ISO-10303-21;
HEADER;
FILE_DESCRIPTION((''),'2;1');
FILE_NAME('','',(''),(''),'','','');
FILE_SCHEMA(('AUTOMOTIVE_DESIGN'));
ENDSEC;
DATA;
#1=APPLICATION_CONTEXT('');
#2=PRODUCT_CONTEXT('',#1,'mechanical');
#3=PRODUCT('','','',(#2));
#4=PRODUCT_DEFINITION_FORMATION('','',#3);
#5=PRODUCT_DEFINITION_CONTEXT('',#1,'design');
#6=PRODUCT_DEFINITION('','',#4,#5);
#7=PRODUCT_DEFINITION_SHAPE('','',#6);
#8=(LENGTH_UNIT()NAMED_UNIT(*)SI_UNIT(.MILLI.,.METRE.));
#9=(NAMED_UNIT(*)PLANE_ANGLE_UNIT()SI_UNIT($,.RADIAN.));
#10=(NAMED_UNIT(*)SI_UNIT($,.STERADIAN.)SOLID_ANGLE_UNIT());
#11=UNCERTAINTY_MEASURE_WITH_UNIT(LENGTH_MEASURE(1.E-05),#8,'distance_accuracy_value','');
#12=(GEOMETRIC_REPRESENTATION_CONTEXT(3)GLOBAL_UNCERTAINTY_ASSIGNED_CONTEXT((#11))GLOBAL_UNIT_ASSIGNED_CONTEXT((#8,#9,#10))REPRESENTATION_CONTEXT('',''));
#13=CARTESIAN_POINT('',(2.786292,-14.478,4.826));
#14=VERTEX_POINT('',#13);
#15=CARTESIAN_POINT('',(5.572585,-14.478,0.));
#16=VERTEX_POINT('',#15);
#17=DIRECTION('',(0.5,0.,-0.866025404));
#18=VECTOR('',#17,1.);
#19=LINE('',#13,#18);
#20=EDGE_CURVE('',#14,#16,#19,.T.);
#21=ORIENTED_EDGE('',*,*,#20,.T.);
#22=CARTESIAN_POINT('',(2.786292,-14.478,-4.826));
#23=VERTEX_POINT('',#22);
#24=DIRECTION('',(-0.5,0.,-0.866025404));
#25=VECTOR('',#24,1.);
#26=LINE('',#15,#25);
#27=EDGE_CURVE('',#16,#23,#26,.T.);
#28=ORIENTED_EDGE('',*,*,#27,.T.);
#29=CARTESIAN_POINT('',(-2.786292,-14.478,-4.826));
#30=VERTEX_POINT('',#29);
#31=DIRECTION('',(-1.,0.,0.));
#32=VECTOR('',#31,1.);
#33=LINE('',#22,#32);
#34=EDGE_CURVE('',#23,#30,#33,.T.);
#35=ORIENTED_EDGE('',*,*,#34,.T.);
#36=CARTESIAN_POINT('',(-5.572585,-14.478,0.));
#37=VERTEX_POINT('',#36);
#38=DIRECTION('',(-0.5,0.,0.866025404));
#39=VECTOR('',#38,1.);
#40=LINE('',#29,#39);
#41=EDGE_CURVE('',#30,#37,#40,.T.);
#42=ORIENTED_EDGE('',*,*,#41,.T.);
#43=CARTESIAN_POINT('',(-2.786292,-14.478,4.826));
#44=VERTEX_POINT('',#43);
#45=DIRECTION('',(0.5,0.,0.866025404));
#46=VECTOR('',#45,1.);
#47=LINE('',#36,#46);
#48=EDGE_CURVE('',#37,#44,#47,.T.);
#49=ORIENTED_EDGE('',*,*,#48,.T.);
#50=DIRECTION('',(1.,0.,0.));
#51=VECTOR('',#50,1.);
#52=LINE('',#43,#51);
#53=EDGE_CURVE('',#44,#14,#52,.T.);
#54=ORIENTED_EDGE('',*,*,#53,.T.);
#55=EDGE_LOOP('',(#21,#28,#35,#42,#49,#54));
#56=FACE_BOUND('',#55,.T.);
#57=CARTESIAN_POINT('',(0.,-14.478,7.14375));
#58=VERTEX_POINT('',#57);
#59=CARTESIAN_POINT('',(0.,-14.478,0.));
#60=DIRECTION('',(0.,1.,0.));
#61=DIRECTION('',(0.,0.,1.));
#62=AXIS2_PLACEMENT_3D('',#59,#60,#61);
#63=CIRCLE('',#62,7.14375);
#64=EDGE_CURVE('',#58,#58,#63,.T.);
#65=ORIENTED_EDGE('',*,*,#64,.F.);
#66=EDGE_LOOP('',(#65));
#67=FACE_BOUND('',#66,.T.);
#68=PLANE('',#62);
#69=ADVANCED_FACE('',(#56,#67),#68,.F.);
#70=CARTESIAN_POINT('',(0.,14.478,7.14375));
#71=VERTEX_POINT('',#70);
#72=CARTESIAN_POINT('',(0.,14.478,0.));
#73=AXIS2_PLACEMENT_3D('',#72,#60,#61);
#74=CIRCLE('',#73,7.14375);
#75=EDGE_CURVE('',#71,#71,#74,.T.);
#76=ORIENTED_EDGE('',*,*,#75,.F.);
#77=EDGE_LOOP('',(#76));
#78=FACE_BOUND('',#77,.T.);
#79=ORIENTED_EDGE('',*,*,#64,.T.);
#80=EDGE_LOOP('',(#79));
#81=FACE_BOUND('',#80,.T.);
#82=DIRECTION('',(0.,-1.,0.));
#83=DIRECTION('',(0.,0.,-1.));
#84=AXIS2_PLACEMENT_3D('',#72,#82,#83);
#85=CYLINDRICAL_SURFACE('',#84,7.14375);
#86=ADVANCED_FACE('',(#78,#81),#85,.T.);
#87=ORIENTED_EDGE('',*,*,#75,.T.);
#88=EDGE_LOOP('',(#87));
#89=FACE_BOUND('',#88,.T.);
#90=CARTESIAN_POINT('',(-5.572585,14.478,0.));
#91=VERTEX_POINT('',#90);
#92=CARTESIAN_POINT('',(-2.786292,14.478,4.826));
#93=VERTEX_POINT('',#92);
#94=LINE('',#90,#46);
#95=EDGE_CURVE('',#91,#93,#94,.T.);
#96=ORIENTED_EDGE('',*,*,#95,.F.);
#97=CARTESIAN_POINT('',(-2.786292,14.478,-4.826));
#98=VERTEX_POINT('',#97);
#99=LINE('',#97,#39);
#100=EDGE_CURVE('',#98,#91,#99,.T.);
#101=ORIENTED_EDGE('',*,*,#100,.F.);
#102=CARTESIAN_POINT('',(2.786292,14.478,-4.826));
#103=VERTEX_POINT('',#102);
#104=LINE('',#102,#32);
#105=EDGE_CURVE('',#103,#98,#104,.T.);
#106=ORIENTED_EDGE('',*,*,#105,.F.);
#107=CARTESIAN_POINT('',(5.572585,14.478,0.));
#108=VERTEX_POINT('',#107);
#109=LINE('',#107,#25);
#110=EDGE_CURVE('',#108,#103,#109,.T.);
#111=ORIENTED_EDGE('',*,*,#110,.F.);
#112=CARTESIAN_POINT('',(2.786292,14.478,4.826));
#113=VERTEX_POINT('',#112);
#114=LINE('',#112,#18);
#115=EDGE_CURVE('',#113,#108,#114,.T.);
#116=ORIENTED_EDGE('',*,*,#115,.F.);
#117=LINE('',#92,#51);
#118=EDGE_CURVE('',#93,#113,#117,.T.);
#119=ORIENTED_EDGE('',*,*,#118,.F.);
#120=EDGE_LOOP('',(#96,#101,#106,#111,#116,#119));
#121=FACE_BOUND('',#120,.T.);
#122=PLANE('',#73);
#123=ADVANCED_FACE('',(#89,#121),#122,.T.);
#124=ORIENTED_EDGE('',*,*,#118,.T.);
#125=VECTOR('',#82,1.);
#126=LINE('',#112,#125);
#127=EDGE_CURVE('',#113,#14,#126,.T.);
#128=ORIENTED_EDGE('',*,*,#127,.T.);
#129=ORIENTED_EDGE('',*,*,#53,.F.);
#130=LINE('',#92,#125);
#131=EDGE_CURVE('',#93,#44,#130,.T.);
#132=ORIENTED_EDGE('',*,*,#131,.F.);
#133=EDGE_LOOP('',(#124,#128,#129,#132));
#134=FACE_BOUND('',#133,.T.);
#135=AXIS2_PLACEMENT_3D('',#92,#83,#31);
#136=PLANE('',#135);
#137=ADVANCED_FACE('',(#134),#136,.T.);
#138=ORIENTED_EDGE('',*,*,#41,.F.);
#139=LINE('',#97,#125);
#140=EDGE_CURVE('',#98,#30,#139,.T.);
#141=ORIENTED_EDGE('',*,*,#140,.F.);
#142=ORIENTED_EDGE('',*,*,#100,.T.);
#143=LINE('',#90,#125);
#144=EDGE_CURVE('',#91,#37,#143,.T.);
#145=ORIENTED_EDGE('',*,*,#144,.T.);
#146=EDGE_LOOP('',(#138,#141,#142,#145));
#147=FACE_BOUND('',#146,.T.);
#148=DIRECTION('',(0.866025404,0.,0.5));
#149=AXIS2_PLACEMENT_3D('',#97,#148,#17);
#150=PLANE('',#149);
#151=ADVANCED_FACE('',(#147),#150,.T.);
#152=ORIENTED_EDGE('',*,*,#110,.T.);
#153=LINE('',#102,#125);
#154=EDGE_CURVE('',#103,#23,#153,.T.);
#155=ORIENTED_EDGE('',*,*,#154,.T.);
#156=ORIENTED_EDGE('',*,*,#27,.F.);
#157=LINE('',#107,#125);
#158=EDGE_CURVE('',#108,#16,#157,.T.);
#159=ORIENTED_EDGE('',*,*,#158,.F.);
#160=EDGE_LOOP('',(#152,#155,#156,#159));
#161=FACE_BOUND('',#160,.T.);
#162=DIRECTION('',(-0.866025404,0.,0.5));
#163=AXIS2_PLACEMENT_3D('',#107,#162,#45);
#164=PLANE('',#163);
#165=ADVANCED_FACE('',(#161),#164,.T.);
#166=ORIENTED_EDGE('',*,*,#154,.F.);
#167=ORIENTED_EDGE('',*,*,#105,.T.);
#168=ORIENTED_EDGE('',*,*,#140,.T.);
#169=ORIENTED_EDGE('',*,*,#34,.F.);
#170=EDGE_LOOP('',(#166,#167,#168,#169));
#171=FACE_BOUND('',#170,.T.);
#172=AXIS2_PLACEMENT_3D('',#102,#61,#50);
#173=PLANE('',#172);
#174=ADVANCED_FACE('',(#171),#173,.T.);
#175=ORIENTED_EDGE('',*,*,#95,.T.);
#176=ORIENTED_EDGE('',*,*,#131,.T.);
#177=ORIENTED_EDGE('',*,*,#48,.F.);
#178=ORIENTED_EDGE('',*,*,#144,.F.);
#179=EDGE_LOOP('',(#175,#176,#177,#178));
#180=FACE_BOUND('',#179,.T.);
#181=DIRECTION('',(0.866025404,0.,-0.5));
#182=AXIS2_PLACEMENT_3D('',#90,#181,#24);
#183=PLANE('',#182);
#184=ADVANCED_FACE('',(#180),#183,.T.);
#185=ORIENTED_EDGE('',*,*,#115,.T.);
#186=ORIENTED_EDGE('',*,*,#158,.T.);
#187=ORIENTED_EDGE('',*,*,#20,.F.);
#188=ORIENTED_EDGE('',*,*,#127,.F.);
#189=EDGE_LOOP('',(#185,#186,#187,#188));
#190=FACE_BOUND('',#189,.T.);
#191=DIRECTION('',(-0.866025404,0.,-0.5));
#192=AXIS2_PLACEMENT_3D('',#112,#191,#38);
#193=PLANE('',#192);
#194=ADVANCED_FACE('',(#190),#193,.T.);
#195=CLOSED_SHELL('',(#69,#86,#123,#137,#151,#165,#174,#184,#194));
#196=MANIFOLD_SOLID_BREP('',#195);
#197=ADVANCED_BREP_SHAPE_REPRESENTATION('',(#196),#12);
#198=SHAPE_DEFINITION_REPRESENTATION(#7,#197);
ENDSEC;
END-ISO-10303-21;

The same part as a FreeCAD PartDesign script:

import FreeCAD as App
import Part
import Sketcher
from FreeCAD import Vector
Q = App.Units.Quantity

doc = App.newDocument("Part")
body = doc.addObject("PartDesign::Body", "Body")

# Sketch on XZ plane
sketch1 = body.newObject("Sketcher::SketchObject", "Sketch")
sketch1.AttachmentSupport = (doc.getObject("XZ_Plane"), [""])
sketch1.MapMode = "FlatFace"
sketch1.addGeometry(Part.Circle(Vector(0, 0, 0), Vector(0, 0, 1), 7), False)
sketch1.addGeometry(Part.LineSegment(Vector(6, 0, 0), Vector(3, 5, 0)), False)
sketch1.addGeometry(Part.LineSegment(Vector(3, 5, 0), Vector(-3, 5, 0)), False)
sketch1.addGeometry(Part.LineSegment(Vector(-3, 5, 0), Vector(-6, 0, 0)), False)
sketch1.addGeometry(Part.LineSegment(Vector(-6, 0, 0), Vector(-3, -5, 0)), False)
sketch1.addGeometry(Part.LineSegment(Vector(-3, -5, 0), Vector(3, -5, 0)), False)
sketch1.addGeometry(Part.LineSegment(Vector(3, -5, 0), Vector(6, 0, 0)), False)
sketch1.addConstraint(Sketcher.Constraint("Coincident", 1, 2, 2, 1))
sketch1.addConstraint(Sketcher.Constraint("Coincident", 2, 2, 3, 1))
sketch1.addConstraint(Sketcher.Constraint("Coincident", 3, 2, 4, 1))
sketch1.addConstraint(Sketcher.Constraint("Coincident", 4, 2, 5, 1))
sketch1.addConstraint(Sketcher.Constraint("Coincident", 5, 2, 6, 1))
sketch1.addConstraint(Sketcher.Constraint("Coincident", 6, 2, 1, 1))
sketch1.addConstraint(Sketcher.Constraint("Horizontal", 2))
sketch1.addConstraint(Sketcher.Constraint("Horizontal", 5))
sketch1.addConstraint(Sketcher.Constraint("Coincident", 0, 3, -1, 1))
sketch1.addConstraint(Sketcher.Constraint("Symmetric", 1, 2, 4, 2, -1, 1))
sketch1.addConstraint(Sketcher.Constraint("Symmetric", 3, 2, 6, 2, -1, 1))
sketch1.addConstraint(Sketcher.Constraint("PointOnObject", 3, 2, -1))
sketch1.addConstraint(Sketcher.Constraint("Parallel", 3, 6))
sketch1.addConstraint(Sketcher.Constraint("Vertical", 2, 2, 4, 2))
sketch1.addConstraint(Sketcher.Constraint("Diameter", 0, Q("0.5625 in")))
sketch1.addConstraint(Sketcher.Constraint("Angle", 1, Q("120 deg")))
sketch1.addConstraint(Sketcher.Constraint("DistanceY", -1, 1, 1, 2, Q("0.19 in")))
sketch1.addConstraint(Sketcher.Constraint("DistanceX", 2, 2, 2, 1, Q("5.572585 mm")))
pad1 = body.newObject("PartDesign::Pad", "Pad")
pad1.Profile = sketch1
pad1.Length = Q("1.14 in")
pad1.Midplane = True

doc.recompute()
